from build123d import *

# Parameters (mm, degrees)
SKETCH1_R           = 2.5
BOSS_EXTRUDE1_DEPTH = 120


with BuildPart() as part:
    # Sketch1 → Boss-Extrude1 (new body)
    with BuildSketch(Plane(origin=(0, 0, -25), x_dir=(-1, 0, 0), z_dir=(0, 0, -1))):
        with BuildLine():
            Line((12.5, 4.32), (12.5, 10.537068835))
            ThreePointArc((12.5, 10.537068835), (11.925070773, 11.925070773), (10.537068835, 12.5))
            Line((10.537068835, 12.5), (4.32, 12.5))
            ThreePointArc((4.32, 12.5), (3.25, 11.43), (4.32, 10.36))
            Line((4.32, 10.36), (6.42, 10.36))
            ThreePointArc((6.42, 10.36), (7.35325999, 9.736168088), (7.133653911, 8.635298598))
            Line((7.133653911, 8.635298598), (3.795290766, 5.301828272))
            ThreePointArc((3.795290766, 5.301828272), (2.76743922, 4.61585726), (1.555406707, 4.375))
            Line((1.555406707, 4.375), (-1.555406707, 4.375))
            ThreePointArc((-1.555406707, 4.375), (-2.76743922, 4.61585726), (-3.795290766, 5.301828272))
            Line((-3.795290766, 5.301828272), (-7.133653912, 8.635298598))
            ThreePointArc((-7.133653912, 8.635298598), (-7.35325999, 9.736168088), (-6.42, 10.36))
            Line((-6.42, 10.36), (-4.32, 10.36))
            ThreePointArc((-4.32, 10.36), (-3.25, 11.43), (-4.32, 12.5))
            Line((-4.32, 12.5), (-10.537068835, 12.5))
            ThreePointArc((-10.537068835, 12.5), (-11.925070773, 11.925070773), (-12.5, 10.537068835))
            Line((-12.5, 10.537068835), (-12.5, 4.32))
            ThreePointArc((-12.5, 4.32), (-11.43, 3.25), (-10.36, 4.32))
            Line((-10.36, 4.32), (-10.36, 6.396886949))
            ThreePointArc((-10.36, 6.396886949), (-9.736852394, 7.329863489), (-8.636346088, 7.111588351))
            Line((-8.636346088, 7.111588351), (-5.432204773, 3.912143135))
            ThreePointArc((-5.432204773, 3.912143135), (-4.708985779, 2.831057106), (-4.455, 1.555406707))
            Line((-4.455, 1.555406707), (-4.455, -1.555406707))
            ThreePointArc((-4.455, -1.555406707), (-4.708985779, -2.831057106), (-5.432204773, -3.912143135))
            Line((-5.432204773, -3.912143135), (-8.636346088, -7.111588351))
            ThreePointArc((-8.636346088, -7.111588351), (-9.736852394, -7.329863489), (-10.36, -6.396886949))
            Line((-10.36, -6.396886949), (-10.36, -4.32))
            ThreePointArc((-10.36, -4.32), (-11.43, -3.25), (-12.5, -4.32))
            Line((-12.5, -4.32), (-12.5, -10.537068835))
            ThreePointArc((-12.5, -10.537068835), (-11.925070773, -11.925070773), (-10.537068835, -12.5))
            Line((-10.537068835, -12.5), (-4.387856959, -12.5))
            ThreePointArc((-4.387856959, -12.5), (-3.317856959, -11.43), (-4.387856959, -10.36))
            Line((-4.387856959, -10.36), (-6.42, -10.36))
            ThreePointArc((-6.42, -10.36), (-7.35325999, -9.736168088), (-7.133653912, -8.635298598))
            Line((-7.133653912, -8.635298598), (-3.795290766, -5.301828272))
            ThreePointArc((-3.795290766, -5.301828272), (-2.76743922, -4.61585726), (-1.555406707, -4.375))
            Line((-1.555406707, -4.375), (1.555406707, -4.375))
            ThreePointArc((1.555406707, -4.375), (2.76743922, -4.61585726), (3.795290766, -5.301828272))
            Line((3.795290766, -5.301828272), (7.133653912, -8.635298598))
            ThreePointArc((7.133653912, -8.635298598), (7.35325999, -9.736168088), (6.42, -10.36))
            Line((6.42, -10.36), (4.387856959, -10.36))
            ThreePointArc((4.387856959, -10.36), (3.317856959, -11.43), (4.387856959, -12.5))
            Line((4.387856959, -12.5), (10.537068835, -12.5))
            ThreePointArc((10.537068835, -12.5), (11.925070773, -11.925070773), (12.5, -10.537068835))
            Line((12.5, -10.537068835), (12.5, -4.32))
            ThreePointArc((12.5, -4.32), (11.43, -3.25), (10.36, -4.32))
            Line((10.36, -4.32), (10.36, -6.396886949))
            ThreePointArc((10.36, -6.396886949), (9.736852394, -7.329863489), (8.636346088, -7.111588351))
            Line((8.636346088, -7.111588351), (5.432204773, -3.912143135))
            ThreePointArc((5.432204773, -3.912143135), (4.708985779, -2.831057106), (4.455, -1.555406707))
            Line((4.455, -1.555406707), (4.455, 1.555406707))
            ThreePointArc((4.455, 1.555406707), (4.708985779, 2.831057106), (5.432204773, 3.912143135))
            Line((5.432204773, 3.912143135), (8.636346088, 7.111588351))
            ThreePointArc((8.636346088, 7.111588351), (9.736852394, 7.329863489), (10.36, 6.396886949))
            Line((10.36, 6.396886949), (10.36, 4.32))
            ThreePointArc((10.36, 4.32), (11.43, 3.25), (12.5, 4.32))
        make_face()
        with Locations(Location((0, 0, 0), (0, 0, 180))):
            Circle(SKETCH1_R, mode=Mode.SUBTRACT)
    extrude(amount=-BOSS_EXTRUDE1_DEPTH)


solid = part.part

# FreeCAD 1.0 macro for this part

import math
import FreeCAD as App
import Part
import Sketcher

V = App.Vector

doc = App.newDocument("Part")
body = doc.addObject("PartDesign::Body", "Body")

sketch1 = doc.addObject("Sketcher::SketchObject", "Sketch")
body.addObject(sketch1)
sketch1.AttachmentSupport = (doc.XY_Plane, [""])
sketch1.MapMode = "FlatFace"
sketch1.AttachmentOffset = App.Placement(V(0, 0, -25), App.Rotation())
sketch1.addGeometry(Part.LineSegment(V(-12.5, 4.3, 0), V(-12.5, 10.5, 0)), False)
sketch1.addGeometry(Part.ArcOfCircle(Part.Circle(V(-10.5, 10.5, 0), V(0, 0, 1), 2), math.radians(90), math.radians(180)), False)
sketch1.addGeometry(Part.LineSegment(V(-10.5, 12.5, 0), V(-4.3, 12.5, 0)), False)
sketch1.addGeometry(Part.ArcOfCircle(Part.Circle(V(-4.3, 11.4, 0), V(0, 0, 1), 1.1), math.radians(-90), math.radians(90)), False)
sketch1.addGeometry(Part.LineSegment(V(-4.3, 10.4, 0), V(-6.4, 10.4, 0)), False)
sketch1.addGeometry(Part.ArcOfCircle(Part.Circle(V(-6.4, 9.4, 0), V(0, 0, 1), 1), math.radians(90), math.radians(225)), False)
sketch1.addGeometry(Part.LineSegment(V(-7.1, 8.6, 0), V(-3.8, 5.3, 0)), False)
sketch1.addGeometry(Part.ArcOfCircle(Part.Circle(V(-1.6, 7.5, 0), V(0, 0, 1), 3.2), math.radians(-135), math.radians(-90)), False)
sketch1.addGeometry(Part.LineSegment(V(-1.6, 4.4, 0), V(1.6, 4.4, 0)), False)
sketch1.addGeometry(Part.ArcOfCircle(Part.Circle(V(1.6, 7.5, 0), V(0, 0, 1), 3.2), math.radians(-90), math.radians(-45)), False)
sketch1.addGeometry(Part.LineSegment(V(3.8, 5.3, 0), V(7.1, 8.6, 0)), False)
sketch1.addGeometry(Part.ArcOfCircle(Part.Circle(V(6.4, 9.3, 0), V(0, 0, 1), 1), math.radians(-45), math.radians(90)), False)
sketch1.addGeometry(Part.LineSegment(V(6.4, 10.4, 0), V(4.3, 10.4, 0)), False)
sketch1.addGeometry(Part.ArcOfCircle(Part.Circle(V(4.3, 11.4, 0), V(0, 0, 1), 1.1), math.radians(90), math.radians(270)), False)
sketch1.addGeometry(Part.LineSegment(V(4.3, 12.5, 0), V(10.5, 12.5, 0)), False)
sketch1.addGeometry(Part.ArcOfCircle(Part.Circle(V(10.5, 10.5, 0), V(0, 0, 1), 2), math.radians(0), math.radians(90)), False)
sketch1.addGeometry(Part.LineSegment(V(12.5, 10.5, 0), V(12.5, 4.3, 0)), False)
sketch1.addGeometry(Part.ArcOfCircle(Part.Circle(V(11.4, 4.3, 0), V(0, 0, 1), 1.1), math.radians(180), math.radians(360)), False)
sketch1.addGeometry(Part.LineSegment(V(10.4, 4.3, 0), V(10.4, 6.4, 0)), False)
sketch1.addGeometry(Part.ArcOfCircle(Part.Circle(V(9.3, 6.4, 0), V(0, 0, 1), 1), math.radians(0), math.radians(135)), False)
sketch1.addGeometry(Part.LineSegment(V(8.6, 7.1, 0), V(5.4, 3.9, 0)), False)
sketch1.addGeometry(Part.ArcOfCircle(Part.Circle(V(7.8, 1.6, 0), V(0, 0, 1), 3.3), math.radians(135), math.radians(180)), False)
sketch1.addGeometry(Part.LineSegment(V(4.5, 1.6, 0), V(4.5, -1.6, 0)), False)
sketch1.addGeometry(Part.ArcOfCircle(Part.Circle(V(7.8, -1.6, 0), V(0, 0, 1), 3.3), math.radians(180), math.radians(225)), False)
sketch1.addGeometry(Part.LineSegment(V(5.4, -3.9, 0), V(8.6, -7.1, 0)), False)
sketch1.addGeometry(Part.ArcOfCircle(Part.Circle(V(9.3, -6.4, 0), V(0, 0, 1), 1), math.radians(-135), math.radians(0)), False)
sketch1.addGeometry(Part.LineSegment(V(10.4, -6.4, 0), V(10.4, -4.3, 0)), False)
sketch1.addGeometry(Part.ArcOfCircle(Part.Circle(V(11.4, -4.3, 0), V(0, 0, 1), 1.1), math.radians(0), math.radians(180)), False)
sketch1.addGeometry(Part.LineSegment(V(12.5, -4.3, 0), V(12.5, -10.5, 0)), False)
sketch1.addGeometry(Part.ArcOfCircle(Part.Circle(V(10.5, -10.5, 0), V(0, 0, 1), 2), math.radians(-90), math.radians(0)), False)
sketch1.addGeometry(Part.LineSegment(V(10.5, -12.5, 0), V(4.4, -12.5, 0)), False)
sketch1.addGeometry(Part.ArcOfCircle(Part.Circle(V(4.4, -11.4, 0), V(0, 0, 1), 1.1), math.radians(90), math.radians(270)), False)
sketch1.addGeometry(Part.LineSegment(V(4.4, -10.4, 0), V(6.4, -10.4, 0)), False)
sketch1.addGeometry(Part.ArcOfCircle(Part.Circle(V(6.4, -9.3, 0), V(0, 0, 1), 1), math.radians(-90), math.radians(45)), False)
sketch1.addGeometry(Part.LineSegment(V(7.1, -8.6, 0), V(3.8, -5.3, 0)), False)
sketch1.addGeometry(Part.ArcOfCircle(Part.Circle(V(1.6, -7.5, 0), V(0, 0, 1), 3.2), math.radians(45), math.radians(90)), False)
sketch1.addGeometry(Part.LineSegment(V(1.6, -4.4, 0), V(-1.6, -4.4, 0)), False)
sketch1.addGeometry(Part.ArcOfCircle(Part.Circle(V(-1.6, -7.5, 0), V(0, 0, 1), 3.2), math.radians(90), math.radians(135)), False)
sketch1.addGeometry(Part.LineSegment(V(-3.8, -5.3, 0), V(-7.1, -8.6, 0)), False)
sketch1.addGeometry(Part.ArcOfCircle(Part.Circle(V(-6.4, -9.3, 0), V(0, 0, 1), 1), math.radians(135), math.radians(270)), False)
sketch1.addGeometry(Part.LineSegment(V(-6.4, -10.4, 0), V(-4.4, -10.4, 0)), False)
sketch1.addGeometry(Part.ArcOfCircle(Part.Circle(V(-4.4, -11.4, 0), V(0, 0, 1), 1.1), math.radians(-90), math.radians(90)), False)
sketch1.addGeometry(Part.LineSegment(V(-4.4, -12.5, 0), V(-10.5, -12.5, 0)), False)
sketch1.addGeometry(Part.ArcOfCircle(Part.Circle(V(-10.5, -10.5, 0), V(0, 0, 1), 2), math.radians(180), math.radians(270)), False)
sketch1.addGeometry(Part.LineSegment(V(-12.5, -10.5, 0), V(-12.5, -4.3, 0)), False)
sketch1.addGeometry(Part.ArcOfCircle(Part.Circle(V(-11.4, -4.3, 0), V(0, 0, 1), 1.1), math.radians(0), math.radians(180)), False)
sketch1.addGeometry(Part.LineSegment(V(-10.4, -4.3, 0), V(-10.4, -6.4, 0)), False)
sketch1.addGeometry(Part.ArcOfCircle(Part.Circle(V(-9.3, -6.4, 0), V(0, 0, 1), 1), math.radians(-180), math.radians(-45)), False)
sketch1.addGeometry(Part.LineSegment(V(-8.6, -7.1, 0), V(-5.4, -3.9, 0)), False)
sketch1.addGeometry(Part.ArcOfCircle(Part.Circle(V(-7.8, -1.6, 0), V(0, 0, 1), 3.3), math.radians(-45), math.radians(0)), False)
sketch1.addGeometry(Part.LineSegment(V(-4.5, -1.6, 0), V(-4.5, 1.6, 0)), False)
sketch1.addGeometry(Part.ArcOfCircle(Part.Circle(V(-7.8, 1.6, 0), V(0, 0, 1), 3.3), math.radians(0), math.radians(45)), False)
sketch1.addGeometry(Part.LineSegment(V(-5.4, 3.9, 0), V(-8.6, 7.1, 0)), False)
sketch1.addGeometry(Part.ArcOfCircle(Part.Circle(V(-9.3, 6.4, 0), V(0, 0, 1), 1), math.radians(45), math.radians(180)), False)
sketch1.addGeometry(Part.LineSegment(V(-10.4, 6.4, 0), V(-10.4, 4.3, 0)), False)
sketch1.addGeometry(Part.ArcOfCircle(Part.Circle(V(-11.4, 4.3, 0), V(0, 0, 1), 1.1), math.radians(180), math.radians(360)), False)
sketch1.addGeometry(Part.Circle(V(0, 0, 0), V(0, 0, 1), 2.5), False)
sketch1.addConstraint(Sketcher.Constraint("Tangent", 0, 2, 1, 2))
sketch1.addConstraint(Sketcher.Constraint("Tangent", 1, 1, 2, 1))
sketch1.addConstraint(Sketcher.Constraint("Tangent", 2, 2, 3, 2))
sketch1.addConstraint(Sketcher.Constraint("Tangent", 3, 1, 4, 1))
sketch1.addConstraint(Sketcher.Constraint("Tangent", 4, 2, 5, 1))
sketch1.addConstraint(Sketcher.Constraint("Tangent", 5, 2, 6, 1))
sketch1.addConstraint(Sketcher.Constraint("Tangent", 6, 2, 7, 1))
sketch1.addConstraint(Sketcher.Constraint("Tangent", 7, 2, 8, 1))
sketch1.addConstraint(Sketcher.Constraint("Tangent", 8, 2, 9, 1))
sketch1.addConstraint(Sketcher.Constraint("Tangent", 9, 2, 10, 1))
sketch1.addConstraint(Sketcher.Constraint("Tangent", 10, 2, 11, 1))
sketch1.addConstraint(Sketcher.Constraint("Tangent", 11, 2, 12, 1))
sketch1.addConstraint(Sketcher.Constraint("Tangent", 12, 2, 13, 2))
sketch1.addConstraint(Sketcher.Constraint("Tangent", 13, 1, 14, 1))
sketch1.addConstraint(Sketcher.Constraint("Tangent", 14, 2, 15, 2))
sketch1.addConstraint(Sketcher.Constraint("Tangent", 15, 1, 16, 1))
sketch1.addConstraint(Sketcher.Constraint("Tangent", 16, 2, 17, 2))
sketch1.addConstraint(Sketcher.Constraint("Tangent", 17, 1, 18, 1))
sketch1.addConstraint(Sketcher.Constraint("Tangent", 18, 2, 19, 1))
sketch1.addConstraint(Sketcher.Constraint("Tangent", 19, 2, 20, 1))
sketch1.addConstraint(Sketcher.Constraint("Tangent", 20, 2, 21, 1))
sketch1.addConstraint(Sketcher.Constraint("Tangent", 21, 2, 22, 1))
sketch1.addConstraint(Sketcher.Constraint("Tangent", 22, 2, 23, 1))
sketch1.addConstraint(Sketcher.Constraint("Tangent", 23, 2, 24, 1))
sketch1.addConstraint(Sketcher.Constraint("Tangent", 24, 2, 25, 1))
sketch1.addConstraint(Sketcher.Constraint("Tangent", 25, 2, 26, 1))
sketch1.addConstraint(Sketcher.Constraint("Tangent", 26, 2, 27, 2))
sketch1.addConstraint(Sketcher.Constraint("Tangent", 27, 1, 28, 1))
sketch1.addConstraint(Sketcher.Constraint("Tangent", 28, 2, 29, 2))
sketch1.addConstraint(Sketcher.Constraint("Tangent", 29, 1, 30, 1))
sketch1.addConstraint(Sketcher.Constraint("Tangent", 30, 2, 31, 2))
sketch1.addConstraint(Sketcher.Constraint("Tangent", 31, 1, 32, 1))
sketch1.addConstraint(Sketcher.Constraint("Tangent", 32, 2, 33, 1))
sketch1.addConstraint(Sketcher.Constraint("Tangent", 33, 2, 34, 1))
sketch1.addConstraint(Sketcher.Constraint("Tangent", 34, 2, 35, 1))
sketch1.addConstraint(Sketcher.Constraint("Tangent", 35, 2, 36, 1))
sketch1.addConstraint(Sketcher.Constraint("Tangent", 36, 2, 37, 1))
sketch1.addConstraint(Sketcher.Constraint("Tangent", 37, 2, 38, 1))
sketch1.addConstraint(Sketcher.Constraint("Tangent", 38, 2, 39, 1))
sketch1.addConstraint(Sketcher.Constraint("Tangent", 39, 2, 40, 1))
sketch1.addConstraint(Sketcher.Constraint("Tangent", 40, 2, 41, 2))
sketch1.addConstraint(Sketcher.Constraint("Tangent", 41, 1, 42, 1))
sketch1.addConstraint(Sketcher.Constraint("Tangent", 42, 2, 43, 2))
sketch1.addConstraint(Sketcher.Constraint("Tangent", 43, 1, 44, 1))
sketch1.addConstraint(Sketcher.Constraint("Tangent", 44, 2, 45, 2))
sketch1.addConstraint(Sketcher.Constraint("Tangent", 45, 1, 46, 1))
sketch1.addConstraint(Sketcher.Constraint("Tangent", 46, 2, 47, 1))
sketch1.addConstraint(Sketcher.Constraint("Tangent", 47, 2, 48, 1))
sketch1.addConstraint(Sketcher.Constraint("Tangent", 48, 2, 49, 1))
sketch1.addConstraint(Sketcher.Constraint("Tangent", 49, 2, 50, 1))
sketch1.addConstraint(Sketcher.Constraint("Tangent", 50, 2, 51, 1))
sketch1.addConstraint(Sketcher.Constraint("Tangent", 51, 2, 52, 1))
sketch1.addConstraint(Sketcher.Constraint("Tangent", 52, 2, 53, 1))
sketch1.addConstraint(Sketcher.Constraint("Tangent", 53, 2, 54, 1))
sketch1.addConstraint(Sketcher.Constraint("Tangent", 54, 2, 55, 2))
sketch1.addConstraint(Sketcher.Constraint("Tangent", 55, 1, 0, 1))
sketch1.addConstraint(Sketcher.Constraint("Vertical", 0))
sketch1.addConstraint(Sketcher.Constraint("Horizontal", 2))
sketch1.addConstraint(Sketcher.Constraint("Horizontal", 4))
sketch1.addConstraint(Sketcher.Constraint("Horizontal", 8))
sketch1.addConstraint(Sketcher.Constraint("Horizontal", 12))
sketch1.addConstraint(Sketcher.Constraint("Horizontal", 14))
sketch1.addConstraint(Sketcher.Constraint("Vertical", 16))
sketch1.addConstraint(Sketcher.Constraint("Vertical", 18))
sketch1.addConstraint(Sketcher.Constraint("Vertical", 22))
sketch1.addConstraint(Sketcher.Constraint("Vertical", 26))
sketch1.addConstraint(Sketcher.Constraint("Vertical", 28))
sketch1.addConstraint(Sketcher.Constraint("Horizontal", 30))
sketch1.addConstraint(Sketcher.Constraint("Horizontal", 32))
sketch1.addConstraint(Sketcher.Constraint("Horizontal", 36))
sketch1.addConstraint(Sketcher.Constraint("Horizontal", 40))
sketch1.addConstraint(Sketcher.Constraint("Horizontal", 42))
sketch1.addConstraint(Sketcher.Constraint("Vertical", 44))
sketch1.addConstraint(Sketcher.Constraint("Vertical", 46))
sketch1.addConstraint(Sketcher.Constraint("Vertical", 50))
sketch1.addConstraint(Sketcher.Constraint("Vertical", 54))
sketch1.addConstraint(Sketcher.Constraint("Coincident", 56, 3, -1, 1))
sketch1.addConstraint(Sketcher.Constraint("Equal", 7, 9))
sketch1.addConstraint(Sketcher.Constraint("Equal", 5, 11))
sketch1.addConstraint(Sketcher.Constraint("Equal", 3, 13))
sketch1.addConstraint(Sketcher.Constraint("Equal", 1, 15))
sketch1.addConstraint(Sketcher.Constraint("Equal", 13, 17))
sketch1.addConstraint(Sketcher.Constraint("Equal", 11, 19))
sketch1.addConstraint(Sketcher.Constraint("Equal", 21, 23))
sketch1.addConstraint(Sketcher.Constraint("Equal", 19, 25))
sketch1.addConstraint(Sketcher.Constraint("Equal", 17, 27))
sketch1.addConstraint(Sketcher.Constraint("Equal", 15, 29))
sketch1.addConstraint(Sketcher.Constraint("Equal", 27, 31))
sketch1.addConstraint(Sketcher.Constraint("Equal", 25, 33))
sketch1.addConstraint(Sketcher.Constraint("Equal", 9, 35))
sketch1.addConstraint(Sketcher.Constraint("Equal", 35, 37))
sketch1.addConstraint(Sketcher.Constraint("Equal", 33, 39))
sketch1.addConstraint(Sketcher.Constraint("Equal", 31, 41))
sketch1.addConstraint(Sketcher.Constraint("Equal", 29, 43))
sketch1.addConstraint(Sketcher.Constraint("Equal", 41, 45))
sketch1.addConstraint(Sketcher.Constraint("Equal", 39, 47))
sketch1.addConstraint(Sketcher.Constraint("Equal", 23, 49))
sketch1.addConstraint(Sketcher.Constraint("Equal", 49, 51))
sketch1.addConstraint(Sketcher.Constraint("Equal", 47, 53))
sketch1.addConstraint(Sketcher.Constraint("Equal", 45, 55))
sketch1.addConstraint(Sketcher.Constraint("Symmetric", 1, 3, 29, 3, -1, 1))
sketch1.addConstraint(Sketcher.Constraint("Symmetric", 7, 3, 35, 3, -1, 1))
sketch1.addConstraint(Sketcher.Constraint("Symmetric", 11, 3, 39, 3, -1, 1))
sketch1.addConstraint(Sketcher.Constraint("Symmetric", 17, 3, 45, 3, -1, 1))
sketch1.addConstraint(Sketcher.Constraint("Symmetric", 21, 3, 49, 3, -1, 1))
sketch1.addConstraint(Sketcher.Constraint("Symmetric", 23, 2, 51, 2, -1, 1))
sketch1.addConstraint(Sketcher.Constraint("Symmetric", 5, 3, 11, 3, -2))
sketch1.addConstraint(Sketcher.Constraint("Symmetric", 27, 3, 45, 3, -2))
sketch1.addConstraint(Sketcher.Constraint("Symmetric", 34, 2, 37, 2, -2))
sketch1.addConstraint(Sketcher.Constraint("Symmetric", 24, 2, 47, 2, -2))
sketch1.addConstraint(Sketcher.Constraint("Parallel", 10, 20))
sketch1.addConstraint(Sketcher.Constraint("Parallel", 6, 24))
sketch1.addConstraint(Sketcher.Constraint("Parallel", 20, 38))
sketch1.addConstraint(Sketcher.Constraint("Horizontal", 17, 3, 55, 3))
sketch1.addConstraint(Sketcher.Constraint("Equal", 4, 12))
sketch1.addConstraint(Sketcher.Constraint("Equal", 32, 40))
sketch1.addConstraint(Sketcher.Constraint("Equal", 14, 0))
sketch1.addConstraint(Sketcher.Constraint("Equal", 36, 22))
sketch1.addConstraint(Sketcher.Constraint("Diameter", 56, 5.0))
sketch1.addConstraint(Sketcher.Constraint("Radius", 3, 1.07))
sketch1.addConstraint(Sketcher.Constraint("Radius", 5, 1.01))
sketch1.addConstraint(Sketcher.Constraint("Radius", 7, 3.17))
sketch1.addConstraint(Sketcher.Constraint("DistanceX", 4, 2, 4, 1, 2.1))
sketch1.addConstraint(Sketcher.Constraint("DistanceX", 0, 2, -1, 1, 12.5))
sketch1.addConstraint(Sketcher.Constraint("DistanceY", -1, 1, 1, 1, 12.5))
sketch1.addConstraint(Sketcher.Constraint("DistanceX", 3, 3, -1, 1, 4.32))
sketch1.addConstraint(Sketcher.Constraint("Radius", 1, 1.962931))
sketch1.addConstraint(Sketcher.Constraint("DistanceY", -1, 1, 7, 3, 7.545))
sketch1.addConstraint(Sketcher.Constraint("DistanceX", -1, 1, 21, 2, 4.455))
sketch1.addConstraint(Sketcher.Constraint("Radius", 21, 3.330487))
sketch1.addConstraint(Sketcher.Constraint("Distance", 6, 4.7177))
sketch1.addConstraint(Sketcher.Constraint("DistanceX", 30, 2, 30, 1, 6.149212))
pad1 = doc.addObject("PartDesign::Pad", "Pad")
body.addObject(pad1)
pad1.Profile = sketch1
pad1.Length = 120

doc.recompute()
